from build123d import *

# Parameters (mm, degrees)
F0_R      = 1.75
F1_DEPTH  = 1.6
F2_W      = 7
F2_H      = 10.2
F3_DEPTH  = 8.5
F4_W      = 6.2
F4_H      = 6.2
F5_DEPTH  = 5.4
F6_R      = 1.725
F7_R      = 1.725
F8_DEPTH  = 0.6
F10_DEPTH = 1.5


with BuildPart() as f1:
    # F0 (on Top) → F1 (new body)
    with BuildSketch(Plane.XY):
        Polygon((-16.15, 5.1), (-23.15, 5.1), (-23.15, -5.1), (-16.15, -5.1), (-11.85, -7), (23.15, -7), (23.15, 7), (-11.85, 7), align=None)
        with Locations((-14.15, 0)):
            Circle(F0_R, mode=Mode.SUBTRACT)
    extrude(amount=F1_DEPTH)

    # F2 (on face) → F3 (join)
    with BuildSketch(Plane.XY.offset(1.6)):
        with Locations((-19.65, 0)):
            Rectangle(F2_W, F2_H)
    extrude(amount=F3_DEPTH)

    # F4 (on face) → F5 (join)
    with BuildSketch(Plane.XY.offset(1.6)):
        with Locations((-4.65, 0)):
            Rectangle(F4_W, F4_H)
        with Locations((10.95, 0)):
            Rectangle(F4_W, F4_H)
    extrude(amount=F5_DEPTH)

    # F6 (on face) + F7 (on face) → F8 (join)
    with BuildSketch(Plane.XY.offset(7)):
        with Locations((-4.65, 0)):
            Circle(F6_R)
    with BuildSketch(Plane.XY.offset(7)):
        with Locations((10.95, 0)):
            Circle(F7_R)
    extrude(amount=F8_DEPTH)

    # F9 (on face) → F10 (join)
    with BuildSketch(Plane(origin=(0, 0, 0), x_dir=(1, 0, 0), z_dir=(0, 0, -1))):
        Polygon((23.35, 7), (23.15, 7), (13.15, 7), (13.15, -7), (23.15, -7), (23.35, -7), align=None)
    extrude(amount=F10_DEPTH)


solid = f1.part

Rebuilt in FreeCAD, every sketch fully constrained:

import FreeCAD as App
import Part
import Sketcher
Q = App.Units.Quantity

doc = App.newDocument("Part")
body = doc.addObject("PartDesign::Body", "Body")

# Sketch on XY plane
sketch1 = body.newObject("Sketcher::SketchObject", "Sketch")
sketch1.AttachmentSupport = (doc.getObject("XY_Plane"), [""])
sketch1.MapMode = "FlatFace"
sketch1.addGeometry(Part.LineSegment(App.Vector(-16.1, 5.1, 0), App.Vector(-23.1, 5.1, 0)), False)
sketch1.addGeometry(Part.LineSegment(App.Vector(-23.1, 5.1, 0), App.Vector(-23.1, -5.1, 0)), False)
sketch1.addGeometry(Part.LineSegment(App.Vector(-23.1, -5.1, 0), App.Vector(-16.1, -5.1, 0)), False)
sketch1.addGeometry(Part.LineSegment(App.Vector(-16.1, -5.1, 0), App.Vector(-11.8, -7, 0)), False)
sketch1.addGeometry(Part.LineSegment(App.Vector(-11.8, -7, 0), App.Vector(23.1, -7, 0)), False)
sketch1.addGeometry(Part.LineSegment(App.Vector(23.1, -7, 0), App.Vector(23.1, 7, 0)), False)
sketch1.addGeometry(Part.LineSegment(App.Vector(23.1, 7, 0), App.Vector(-11.8, 7, 0)), False)
sketch1.addGeometry(Part.LineSegment(App.Vector(-11.8, 7, 0), App.Vector(-16.1, 5.1, 0)), False)
sketch1.addGeometry(Part.Circle(App.Vector(-14.2, 0, 0), App.Vector(0, 0, 1), 1.8), False)
sketch1.addConstraint(Sketcher.Constraint("Coincident", 0, 2, 1, 1))
sketch1.addConstraint(Sketcher.Constraint("Coincident", 1, 2, 2, 1))
sketch1.addConstraint(Sketcher.Constraint("Coincident", 2, 2, 3, 1))
sketch1.addConstraint(Sketcher.Constraint("Coincident", 3, 2, 4, 1))
sketch1.addConstraint(Sketcher.Constraint("Coincident", 4, 2, 5, 1))
sketch1.addConstraint(Sketcher.Constraint("Coincident", 5, 2, 6, 1))
sketch1.addConstraint(Sketcher.Constraint("Coincident", 6, 2, 7, 1))
sketch1.addConstraint(Sketcher.Constraint("Coincident", 7, 2, 0, 1))
sketch1.addConstraint(Sketcher.Constraint("Horizontal", 0))
sketch1.addConstraint(Sketcher.Constraint("Vertical", 1))
sketch1.addConstraint(Sketcher.Constraint("Horizontal", 2))
sketch1.addConstraint(Sketcher.Constraint("Horizontal", 4))
sketch1.addConstraint(Sketcher.Constraint("Vertical", 5))
sketch1.addConstraint(Sketcher.Constraint("Horizontal", 6))
sketch1.addConstraint(Sketcher.Constraint("Symmetric", 3, 2, 6, 2, -1))
sketch1.addConstraint(Sketcher.Constraint("Symmetric", 2, 2, 7, 2, -1))
sketch1.addConstraint(Sketcher.Constraint("PointOnObject", 8, 3, -1))
sketch1.addConstraint(Sketcher.Constraint("Diameter", 8, Q("3.5 mm")))
sketch1.addConstraint(Sketcher.Constraint("DistanceX", 0, 2, 0, 1, Q("7 mm")))
sketch1.addConstraint(Sketcher.Constraint("DistanceX", 4, 1, 4, 2, Q("35 mm")))
sketch1.addConstraint(Sketcher.Constraint("DistanceY", 5, 1, 5, 2, Q("14 mm")))
sketch1.addConstraint(Sketcher.Constraint("DistanceY", 1, 2, 1, 1, Q("10.2 mm")))
sketch1.addConstraint(Sketcher.Constraint("DistanceX", 0, 2, 8, 3, Q("9 mm")))
sketch1.addConstraint(Sketcher.Constraint("DistanceX", 2, 2, 3, 2, Q("4.3 mm")))
sketch1.addConstraint(Sketcher.Constraint("DistanceX", 8, 3, -1, 1, Q("14.15 mm")))
pad1 = body.newObject("PartDesign::Pad", "Pad")
pad1.Profile = sketch1
pad1.Length = 1.6

# Sketch on XY plane
sketch2 = body.newObject("Sketcher::SketchObject", "Sketch001")
sketch2.AttachmentSupport = (doc.getObject("XY_Plane"), [""])
sketch2.MapMode = "FlatFace"
sketch2.AttachmentOffset = App.Placement(App.Vector(0, 0, 1.6), App.Rotation())
sketch2.addGeometry(Part.LineSegment(App.Vector(-23, 5, 0), App.Vector(-23, -5, 0)), False)
sketch2.addGeometry(Part.LineSegment(App.Vector(-23, -5, 0), App.Vector(-16, -5, 0)), False)
sketch2.addGeometry(Part.LineSegment(App.Vector(-16, -5, 0), App.Vector(-16, 5, 0)), False)
sketch2.addGeometry(Part.LineSegment(App.Vector(-16, 5, 0), App.Vector(-23, 5, 0)), False)
sketch2.addConstraint(Sketcher.Constraint("Coincident", 0, 2, 1, 1))
sketch2.addConstraint(Sketcher.Constraint("Coincident", 1, 2, 2, 1))
sketch2.addConstraint(Sketcher.Constraint("Coincident", 2, 2, 3, 1))
sketch2.addConstraint(Sketcher.Constraint("Coincident", 3, 2, 0, 1))
sketch2.addConstraint(Sketcher.Constraint("Vertical", 0))
sketch2.addConstraint(Sketcher.Constraint("Horizontal", 1))
sketch2.addConstraint(Sketcher.Constraint("Vertical", 2))
sketch2.addConstraint(Sketcher.Constraint("Horizontal", 3))
sketch2.addConstraint(Sketcher.Constraint("DistanceX", 1, 1, 1, 2, Q("7 mm")))
sketch2.addConstraint(Sketcher.Constraint("DistanceY", 0, 2, 0, 1, Q("10.2 mm")))
sketch2.addConstraint(Sketcher.Constraint("DistanceY", 0, 2, -1, 1, Q("5.1 mm")))
sketch2.addConstraint(Sketcher.Constraint("DistanceX", 0, 2, -1, 1, Q("23.15 mm")))
pad2 = body.newObject("PartDesign::Pad", "Pad001")
pad2.Profile = sketch2
pad2.Length = 8.5

# Sketch on XY plane
sketch3 = body.newObject("Sketcher::SketchObject", "Sketch002")
sketch3.AttachmentSupport = (doc.getObject("XY_Plane"), [""])
sketch3.MapMode = "FlatFace"
sketch3.AttachmentOffset = App.Placement(App.Vector(0, 0, 1.6), App.Rotation())
sketch3.addGeometry(Part.LineSegment(App.Vector(-8, 3, 0), App.Vector(-8, -3, 0)), False)
sketch3.addGeometry(Part.LineSegment(App.Vector(-8, -3, 0), App.Vector(-2, -3, 0)), False)
sketch3.addGeometry(Part.LineSegment(App.Vector(-2, -3, 0), App.Vector(-2, 3, 0)), False)
sketch3.addGeometry(Part.LineSegment(App.Vector(-2, 3, 0), App.Vector(-8, 3, 0)), False)
sketch3.addGeometry(Part.LineSegment(App.Vector(8, 3, 0), App.Vector(8, -3, 0)), False)
sketch3.addGeometry(Part.LineSegment(App.Vector(8, -3, 0), App.Vector(14, -3, 0)), False)
sketch3.addGeometry(Part.LineSegment(App.Vector(14, -3, 0), App.Vector(14, 3, 0)), False)
sketch3.addGeometry(Part.LineSegment(App.Vector(14, 3, 0), App.Vector(8, 3, 0)), False)
sketch3.addConstraint(Sketcher.Constraint("Coincident", 0, 2, 1, 1))
sketch3.addConstraint(Sketcher.Constraint("Coincident", 1, 2, 2, 1))
sketch3.addConstraint(Sketcher.Constraint("Coincident", 2, 2, 3, 1))
sketch3.addConstraint(Sketcher.Constraint("Coincident", 3, 2, 0, 1))
sketch3.addConstraint(Sketcher.Constraint("Coincident", 4, 2, 5, 1))
sketch3.addConstraint(Sketcher.Constraint("Coincident", 5, 2, 6, 1))
sketch3.addConstraint(Sketcher.Constraint("Coincident", 6, 2, 7, 1))
sketch3.addConstraint(Sketcher.Constraint("Coincident", 7, 2, 4, 1))
sketch3.addConstraint(Sketcher.Constraint("Vertical", 0))
sketch3.addConstraint(Sketcher.Constraint("Horizontal", 1))
sketch3.addConstraint(Sketcher.Constraint("Vertical", 2))
sketch3.addConstraint(Sketcher.Constraint("Horizontal", 3))
sketch3.addConstraint(Sketcher.Constraint("Vertical", 4))
sketch3.addConstraint(Sketcher.Constraint("Horizontal", 5))
sketch3.addConstraint(Sketcher.Constraint("Vertical", 6))
sketch3.addConstraint(Sketcher.Constraint("Horizontal", 7))
sketch3.addConstraint(Sketcher.Constraint("Horizontal", 1, 2, 4, 2))
sketch3.addConstraint(Sketcher.Constraint("Horizontal", 3, 2, 6, 2))
sketch3.addConstraint(Sketcher.Constraint("Equal", 3, 5))
sketch3.addConstraint(Sketcher.Constraint("Equal", 7, 0))
sketch3.addConstraint(Sketcher.Constraint("DistanceX", 1, 1, 1, 2, Q("6.2 mm")))
sketch3.addConstraint(Sketcher.Constraint("DistanceY", 0, 2, -1, 1, Q("3.1 mm")))
sketch3.addConstraint(Sketcher.Constraint("DistanceX", 1, 2, 4, 2, Q("9.4 mm")))
sketch3.addConstraint(Sketcher.Constraint("DistanceX", 0, 2, -1, 1, Q("7.75 mm")))
pad3 = body.newObject("PartDesign::Pad", "Pad002")
pad3.Profile = sketch3
pad3.Length = 5.4

# Sketch on XY plane
sketch4 = body.newObject("Sketcher::SketchObject", "Sketch003")
sketch4.AttachmentSupport = (doc.getObject("XY_Plane"), [""])
sketch4.MapMode = "FlatFace"
sketch4.AttachmentOffset = App.Placement(App.Vector(0, 0, 7), App.Rotation())
sketch4.addGeometry(Part.Circle(App.Vector(-4.7, 0, 0), App.Vector(0, 0, 1), 1.7), False)
sketch4.addGeometry(Part.Circle(App.Vector(10.9, 0, 0), App.Vector(0, 0, 1), 1.7), False)
sketch4.addConstraint(Sketcher.Constraint("Equal", 0, 1))
sketch4.addConstraint(Sketcher.Constraint("PointOnObject", 0, 3, -1))
sketch4.addConstraint(Sketcher.Constraint("PointOnObject", 1, 3, -1))
sketch4.addConstraint(Sketcher.Constraint("Diameter", 0, Q("3.45 mm")))
sketch4.addConstraint(Sketcher.Constraint("DistanceX", 0, 3, 1, 3, Q("15.6 mm")))
sketch4.addConstraint(Sketcher.Constraint("DistanceX", 0, 3, -1, 1, Q("4.65 mm")))
pad4 = body.newObject("PartDesign::Pad", "Pad003")
pad4.Profile = sketch4
pad4.Length = 0.6

# Sketch on XY plane
sketch5 = body.newObject("Sketcher::SketchObject", "Sketch004")
sketch5.AttachmentSupport = (doc.getObject("XY_Plane"), [""])
sketch5.MapMode = "FlatFace"
sketch5.addGeometry(Part.LineSegment(App.Vector(23, -7, 0), App.Vector(13, -7, 0)), False)
sketch5.addGeometry(Part.LineSegment(App.Vector(13, -7, 0), App.Vector(13, 7, 0)), False)
sketch5.addGeometry(Part.LineSegment(App.Vector(13, 7, 0), App.Vector(23, 7, 0)), False)
sketch5.addGeometry(Part.LineSegment(App.Vector(23, 7, 0), App.Vector(23, -7, 0)), False)
sketch5.addConstraint(Sketcher.Constraint("Coincident", 0, 2, 1, 1))
sketch5.addConstraint(Sketcher.Constraint("Coincident", 1, 2, 2, 1))
sketch5.addConstraint(Sketcher.Constraint("Coincident", 2, 2, 3, 1))
sketch5.addConstraint(Sketcher.Constraint("Coincident", 3, 2, 0, 1))
sketch5.addConstraint(Sketcher.Constraint("Horizontal", 0))
sketch5.addConstraint(Sketcher.Constraint("Vertical", 1))
sketch5.addConstraint(Sketcher.Constraint("Horizontal", 2))
sketch5.addConstraint(Sketcher.Constraint("Vertical", 3))
sketch5.addConstraint(Sketcher.Constraint("DistanceY", 1, 1, 1, 2, Q("14 mm")))
sketch5.addConstraint(Sketcher.Constraint("DistanceX", 0, 2, 0, 1, Q("10.2 mm")))
sketch5.addConstraint(Sketcher.Constraint("DistanceY", 0, 2, -1, 1, Q("7 mm")))
sketch5.addConstraint(Sketcher.Constraint("DistanceX", -1, 1, 0, 2, Q("13.15 mm")))
pad5 = body.newObject("PartDesign::Pad", "Pad004")
pad5.Profile = sketch5
pad5.Length = 1.5
pad5.Reversed = True

doc.recompute()
